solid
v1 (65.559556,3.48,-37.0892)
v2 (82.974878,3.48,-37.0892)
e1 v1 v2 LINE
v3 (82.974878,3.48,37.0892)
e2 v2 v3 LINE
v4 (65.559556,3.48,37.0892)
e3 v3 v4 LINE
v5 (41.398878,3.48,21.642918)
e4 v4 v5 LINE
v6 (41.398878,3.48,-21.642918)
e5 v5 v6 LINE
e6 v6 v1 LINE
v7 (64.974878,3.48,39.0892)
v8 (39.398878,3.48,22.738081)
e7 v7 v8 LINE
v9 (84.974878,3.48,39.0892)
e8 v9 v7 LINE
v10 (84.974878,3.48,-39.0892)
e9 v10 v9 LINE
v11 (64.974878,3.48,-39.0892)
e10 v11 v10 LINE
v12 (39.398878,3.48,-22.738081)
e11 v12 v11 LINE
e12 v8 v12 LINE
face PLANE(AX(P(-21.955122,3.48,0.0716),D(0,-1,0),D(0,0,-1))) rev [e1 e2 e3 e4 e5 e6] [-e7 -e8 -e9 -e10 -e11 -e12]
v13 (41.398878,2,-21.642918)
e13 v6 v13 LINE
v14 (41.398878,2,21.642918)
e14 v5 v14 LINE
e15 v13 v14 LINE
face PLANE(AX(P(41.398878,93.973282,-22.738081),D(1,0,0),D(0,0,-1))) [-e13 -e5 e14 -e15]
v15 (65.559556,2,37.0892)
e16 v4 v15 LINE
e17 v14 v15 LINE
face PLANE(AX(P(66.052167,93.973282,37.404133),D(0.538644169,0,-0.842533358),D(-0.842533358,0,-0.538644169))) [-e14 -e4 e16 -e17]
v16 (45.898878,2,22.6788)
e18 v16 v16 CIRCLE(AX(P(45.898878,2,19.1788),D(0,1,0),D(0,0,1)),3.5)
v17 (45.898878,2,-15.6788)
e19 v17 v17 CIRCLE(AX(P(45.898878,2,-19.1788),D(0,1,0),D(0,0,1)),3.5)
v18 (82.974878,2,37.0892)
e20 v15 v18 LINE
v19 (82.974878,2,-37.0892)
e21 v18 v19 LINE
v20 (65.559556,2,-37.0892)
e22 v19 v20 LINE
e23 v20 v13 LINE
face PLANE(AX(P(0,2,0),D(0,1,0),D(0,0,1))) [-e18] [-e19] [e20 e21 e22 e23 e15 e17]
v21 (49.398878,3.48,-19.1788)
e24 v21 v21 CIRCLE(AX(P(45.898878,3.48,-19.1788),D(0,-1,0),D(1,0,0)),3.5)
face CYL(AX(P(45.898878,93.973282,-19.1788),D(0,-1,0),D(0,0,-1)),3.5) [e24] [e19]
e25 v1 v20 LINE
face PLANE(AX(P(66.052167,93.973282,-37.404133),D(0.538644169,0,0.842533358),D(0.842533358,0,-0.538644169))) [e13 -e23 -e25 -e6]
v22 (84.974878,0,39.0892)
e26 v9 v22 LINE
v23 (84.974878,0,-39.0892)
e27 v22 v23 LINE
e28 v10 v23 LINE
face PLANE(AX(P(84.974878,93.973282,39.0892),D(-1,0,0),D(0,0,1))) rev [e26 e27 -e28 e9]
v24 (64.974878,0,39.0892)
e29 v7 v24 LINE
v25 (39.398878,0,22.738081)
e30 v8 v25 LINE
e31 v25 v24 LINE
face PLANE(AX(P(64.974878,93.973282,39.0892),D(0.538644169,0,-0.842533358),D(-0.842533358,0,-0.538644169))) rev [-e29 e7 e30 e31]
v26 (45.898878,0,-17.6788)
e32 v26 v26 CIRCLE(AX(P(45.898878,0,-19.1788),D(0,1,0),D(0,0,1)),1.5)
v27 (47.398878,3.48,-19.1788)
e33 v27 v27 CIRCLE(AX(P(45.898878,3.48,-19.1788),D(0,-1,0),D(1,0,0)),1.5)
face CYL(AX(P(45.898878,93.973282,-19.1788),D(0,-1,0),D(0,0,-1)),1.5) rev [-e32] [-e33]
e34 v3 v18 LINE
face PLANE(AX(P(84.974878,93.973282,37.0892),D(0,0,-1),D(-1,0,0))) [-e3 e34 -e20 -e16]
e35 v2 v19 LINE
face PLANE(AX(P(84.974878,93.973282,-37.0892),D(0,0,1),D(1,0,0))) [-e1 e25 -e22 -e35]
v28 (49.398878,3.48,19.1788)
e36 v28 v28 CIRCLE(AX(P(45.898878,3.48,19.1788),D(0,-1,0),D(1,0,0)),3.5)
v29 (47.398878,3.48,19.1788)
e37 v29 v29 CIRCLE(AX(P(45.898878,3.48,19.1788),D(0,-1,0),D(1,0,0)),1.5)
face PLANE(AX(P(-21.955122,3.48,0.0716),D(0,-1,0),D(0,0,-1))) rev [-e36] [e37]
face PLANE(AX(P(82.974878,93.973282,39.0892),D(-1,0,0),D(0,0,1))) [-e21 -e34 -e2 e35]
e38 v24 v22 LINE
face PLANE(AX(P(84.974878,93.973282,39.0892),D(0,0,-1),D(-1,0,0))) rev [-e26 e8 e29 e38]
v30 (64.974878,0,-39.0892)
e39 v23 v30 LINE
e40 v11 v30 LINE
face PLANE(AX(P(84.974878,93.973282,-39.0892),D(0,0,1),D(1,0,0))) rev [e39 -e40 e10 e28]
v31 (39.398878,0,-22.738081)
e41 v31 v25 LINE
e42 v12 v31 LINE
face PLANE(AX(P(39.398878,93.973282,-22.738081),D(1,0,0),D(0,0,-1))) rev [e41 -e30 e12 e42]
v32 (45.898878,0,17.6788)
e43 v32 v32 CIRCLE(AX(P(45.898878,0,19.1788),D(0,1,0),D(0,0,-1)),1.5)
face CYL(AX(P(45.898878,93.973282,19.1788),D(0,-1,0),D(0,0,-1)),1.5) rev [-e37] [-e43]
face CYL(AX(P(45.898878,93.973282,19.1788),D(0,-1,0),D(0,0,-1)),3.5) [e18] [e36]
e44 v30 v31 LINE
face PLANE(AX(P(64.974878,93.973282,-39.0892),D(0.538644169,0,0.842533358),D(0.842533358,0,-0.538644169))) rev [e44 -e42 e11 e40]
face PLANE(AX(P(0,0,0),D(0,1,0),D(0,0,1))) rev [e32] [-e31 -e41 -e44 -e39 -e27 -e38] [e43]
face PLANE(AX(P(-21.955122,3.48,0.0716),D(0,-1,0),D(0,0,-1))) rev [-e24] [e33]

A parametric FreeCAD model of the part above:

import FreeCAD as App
import Part
import Sketcher
from FreeCAD import Vector


def faces_at(feature, points):
    """Names of the faces that lie closest to the given points."""
    faces = feature.Shape.Faces
    near = lambda p: min(range(len(faces)), key=lambda i: faces[i].distToShape(Part.Vertex(*p))[0])
    return sorted({f"Face{near(p) + 1}" for p in points})


def add_polygon(sketch, points):
    """Adds a closed chain of lines whose ends are joined by coincident constraints."""
    first, n = sketch.GeometryCount, len(points)
    for a, b in zip(points, points[1:] + points[:1]):
        sketch.addGeometry(Part.LineSegment(App.Vector(*a, 0), App.Vector(*b, 0)), False)
    for i in range(n):
        sketch.addConstraint(Sketcher.Constraint("Coincident", first + i, 2, first + (i + 1) % n, 1))

doc = App.newDocument("Part")
body = doc.addObject("PartDesign::Body", "Body")

sketch1 = doc.addObject("Sketcher::SketchObject", "Sketch")
body.addObject(sketch1)
sketch1.AttachmentSupport = (doc.XZ_Plane, [""])
sketch1.MapMode = "FlatFace"
add_polygon(sketch1, [(85, -39.1), (65, -39.1), (39.4, -22.7), (39.4, 22.7), (65, 39.1), (85, 39.1)])
sketch1.addGeometry(Part.Circle(Vector(45.9, 19.2, 0), Vector(0, 0, 1), 1.5), False)
sketch1.addGeometry(Part.Circle(Vector(45.9, -19.2, 0), Vector(0, 0, 1), 1.5), False)
sketch1.addConstraint([
    Sketcher.Constraint("Horizontal", 0),
    Sketcher.Constraint("Vertical", 2),
    Sketcher.Constraint("Horizontal", 4),
    Sketcher.Constraint("Vertical", 5),
    Sketcher.Constraint("Equal", 6, 7),
    Sketcher.Constraint("Symmetric", 6, 3, 7, 3, -1),
    Sketcher.Constraint("Symmetric", 0, 2, 3, 2, -1),
    Sketcher.Constraint("Equal", 1, 3),
    Sketcher.Constraint("Diameter", 6, 3.0),
    Sketcher.Constraint("DistanceX", 0, 2, 0, 1, 20.0),
    Sketcher.Constraint("DistanceX", 1, 2, 7, 3, 6.5),
    Sketcher.Constraint("DistanceY", 5, 2, 5, 1, 78.1784),
    Sketcher.Constraint("DistanceX", 7, 3, 0, 2, 19.076),
    Sketcher.Constraint("DistanceY", 0, 2, 6, 3, 58.268),
    Sketcher.Constraint("DistanceY", 2, 1, 2, 2, 45.476162),
    Sketcher.Constraint("DistanceX", -1, 1, 6, 3, 45.898878),
])
pad1 = doc.addObject("PartDesign::Pad", "Pad")
body.addObject(pad1)
pad1.Profile = sketch1
pad1.Length = 3.48
pad1.Reversed = True
doc.recompute()

thickness = doc.addObject("PartDesign::Thickness", "Thickness")
body.addObject(thickness)
thickness.Base = (pad1, faces_at(pad1, [(62.187, 3.48, 0)]))
thickness.Value = 2
thickness.Reversed = True
thickness.Join = "Intersection"

doc.recompute()
